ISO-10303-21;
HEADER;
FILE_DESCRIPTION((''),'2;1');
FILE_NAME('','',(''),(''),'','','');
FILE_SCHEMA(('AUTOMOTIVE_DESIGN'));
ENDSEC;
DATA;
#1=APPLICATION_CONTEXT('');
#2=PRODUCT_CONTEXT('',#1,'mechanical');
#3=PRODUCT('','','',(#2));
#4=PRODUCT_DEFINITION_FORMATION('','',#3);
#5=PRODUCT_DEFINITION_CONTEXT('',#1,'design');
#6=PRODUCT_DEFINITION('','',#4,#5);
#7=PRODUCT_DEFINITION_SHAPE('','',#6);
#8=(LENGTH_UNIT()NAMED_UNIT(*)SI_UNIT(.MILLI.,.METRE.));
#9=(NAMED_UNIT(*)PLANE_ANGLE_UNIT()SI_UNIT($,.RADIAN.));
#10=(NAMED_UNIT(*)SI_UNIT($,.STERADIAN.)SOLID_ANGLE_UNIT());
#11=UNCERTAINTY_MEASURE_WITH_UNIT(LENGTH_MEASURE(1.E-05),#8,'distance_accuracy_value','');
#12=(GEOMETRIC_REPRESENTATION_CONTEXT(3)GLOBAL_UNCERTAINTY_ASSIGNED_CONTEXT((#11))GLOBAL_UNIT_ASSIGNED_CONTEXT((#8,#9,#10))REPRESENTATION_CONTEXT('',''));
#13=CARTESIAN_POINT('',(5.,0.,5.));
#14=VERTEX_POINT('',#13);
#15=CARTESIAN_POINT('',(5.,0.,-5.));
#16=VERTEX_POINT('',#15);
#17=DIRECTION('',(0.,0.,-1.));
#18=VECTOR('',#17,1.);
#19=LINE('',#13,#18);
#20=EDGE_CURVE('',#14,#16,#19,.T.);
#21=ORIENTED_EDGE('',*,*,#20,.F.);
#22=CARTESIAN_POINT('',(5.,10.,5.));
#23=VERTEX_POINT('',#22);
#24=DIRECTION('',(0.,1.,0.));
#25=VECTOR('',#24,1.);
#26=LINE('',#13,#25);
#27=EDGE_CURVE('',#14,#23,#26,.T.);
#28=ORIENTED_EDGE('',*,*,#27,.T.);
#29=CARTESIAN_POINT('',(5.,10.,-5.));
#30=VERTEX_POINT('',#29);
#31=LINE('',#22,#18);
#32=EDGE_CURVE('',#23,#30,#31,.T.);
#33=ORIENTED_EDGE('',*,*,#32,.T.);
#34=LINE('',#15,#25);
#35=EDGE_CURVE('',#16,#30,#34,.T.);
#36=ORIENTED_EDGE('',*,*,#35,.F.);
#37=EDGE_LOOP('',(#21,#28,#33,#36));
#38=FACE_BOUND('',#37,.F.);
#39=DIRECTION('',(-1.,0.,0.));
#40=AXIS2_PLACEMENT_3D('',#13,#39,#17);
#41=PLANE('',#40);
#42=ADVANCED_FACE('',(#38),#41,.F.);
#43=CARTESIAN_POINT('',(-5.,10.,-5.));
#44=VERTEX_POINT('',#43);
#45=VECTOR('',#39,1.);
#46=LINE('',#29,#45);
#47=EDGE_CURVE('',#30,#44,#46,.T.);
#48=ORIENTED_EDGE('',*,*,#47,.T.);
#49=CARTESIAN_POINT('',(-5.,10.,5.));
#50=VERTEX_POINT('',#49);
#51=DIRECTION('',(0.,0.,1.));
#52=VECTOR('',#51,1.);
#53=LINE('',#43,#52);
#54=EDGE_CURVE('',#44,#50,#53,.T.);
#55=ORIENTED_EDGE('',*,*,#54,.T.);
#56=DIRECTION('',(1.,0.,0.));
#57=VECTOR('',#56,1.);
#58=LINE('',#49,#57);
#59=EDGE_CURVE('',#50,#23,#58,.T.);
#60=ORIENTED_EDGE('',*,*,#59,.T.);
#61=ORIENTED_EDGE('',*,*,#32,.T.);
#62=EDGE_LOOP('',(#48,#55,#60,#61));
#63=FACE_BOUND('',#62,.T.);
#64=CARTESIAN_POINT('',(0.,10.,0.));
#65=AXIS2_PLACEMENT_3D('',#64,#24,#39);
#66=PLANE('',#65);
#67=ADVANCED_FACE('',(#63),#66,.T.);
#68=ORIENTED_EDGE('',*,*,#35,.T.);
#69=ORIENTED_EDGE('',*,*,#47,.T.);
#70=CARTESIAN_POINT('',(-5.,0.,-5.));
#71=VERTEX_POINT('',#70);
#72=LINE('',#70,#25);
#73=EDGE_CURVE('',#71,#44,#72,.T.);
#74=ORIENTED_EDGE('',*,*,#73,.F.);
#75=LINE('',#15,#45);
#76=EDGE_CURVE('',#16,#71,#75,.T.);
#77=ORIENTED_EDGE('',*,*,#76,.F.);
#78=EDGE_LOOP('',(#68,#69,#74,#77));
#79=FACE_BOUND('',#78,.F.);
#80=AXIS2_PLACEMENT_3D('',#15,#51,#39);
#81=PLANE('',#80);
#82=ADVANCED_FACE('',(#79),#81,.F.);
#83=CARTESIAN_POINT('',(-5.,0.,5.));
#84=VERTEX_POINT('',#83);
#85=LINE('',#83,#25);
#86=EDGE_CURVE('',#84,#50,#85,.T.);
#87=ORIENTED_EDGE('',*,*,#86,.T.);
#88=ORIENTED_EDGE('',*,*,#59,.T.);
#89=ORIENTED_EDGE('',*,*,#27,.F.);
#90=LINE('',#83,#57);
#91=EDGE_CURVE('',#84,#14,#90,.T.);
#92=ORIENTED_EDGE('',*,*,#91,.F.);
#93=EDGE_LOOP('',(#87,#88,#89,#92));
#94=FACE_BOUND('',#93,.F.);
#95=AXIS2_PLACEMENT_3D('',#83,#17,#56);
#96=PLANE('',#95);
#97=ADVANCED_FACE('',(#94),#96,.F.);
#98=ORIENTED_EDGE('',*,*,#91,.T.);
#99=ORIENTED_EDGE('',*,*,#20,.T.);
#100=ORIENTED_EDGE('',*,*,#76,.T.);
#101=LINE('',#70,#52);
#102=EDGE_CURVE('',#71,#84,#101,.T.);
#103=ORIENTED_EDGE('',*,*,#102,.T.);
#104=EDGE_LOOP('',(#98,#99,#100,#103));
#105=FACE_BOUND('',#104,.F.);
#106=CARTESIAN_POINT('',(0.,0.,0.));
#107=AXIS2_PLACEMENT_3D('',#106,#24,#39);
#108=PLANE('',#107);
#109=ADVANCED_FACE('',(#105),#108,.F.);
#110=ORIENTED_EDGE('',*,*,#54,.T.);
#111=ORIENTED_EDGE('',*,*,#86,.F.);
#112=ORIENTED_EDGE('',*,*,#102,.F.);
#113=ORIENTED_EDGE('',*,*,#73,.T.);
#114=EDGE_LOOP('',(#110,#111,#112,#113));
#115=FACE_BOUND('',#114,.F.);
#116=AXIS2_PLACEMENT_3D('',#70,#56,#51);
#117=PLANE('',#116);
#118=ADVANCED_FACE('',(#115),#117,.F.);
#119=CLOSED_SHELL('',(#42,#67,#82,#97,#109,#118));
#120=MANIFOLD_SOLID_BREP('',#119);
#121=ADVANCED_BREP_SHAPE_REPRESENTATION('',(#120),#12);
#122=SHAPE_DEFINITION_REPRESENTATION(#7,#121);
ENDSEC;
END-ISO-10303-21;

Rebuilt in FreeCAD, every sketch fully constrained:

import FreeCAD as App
import Part
import Sketcher

V = App.Vector


def add_polygon(sketch, points):
    """Adds a closed chain of lines whose ends are joined by coincident constraints."""
    first, n = sketch.GeometryCount, len(points)
    for a, b in zip(points, points[1:] + points[:1]):
        sketch.addGeometry(Part.LineSegment(App.Vector(*a, 0), App.Vector(*b, 0)), False)
    for i in range(n):
        sketch.addConstraint(Sketcher.Constraint("Coincident", first + i, 2, first + (i + 1) % n, 1))

doc = App.newDocument("Part")
body = doc.addObject("PartDesign::Body", "Body")

# Sketch on XZ plane
sketch1 = body.newObject("Sketcher::SketchObject", "Sketch")
sketch1.AttachmentSupport = (doc.getObject("XZ_Plane"), [""])
sketch1.MapMode = "FlatFace"
add_polygon(sketch1, [(5, 5), (5, -5), (-5, -5), (-5, 5)])  # lines 0-3
sketch1.addConstraint(Sketcher.Constraint("Vertical", 0))
sketch1.addConstraint(Sketcher.Constraint("Horizontal", 1))
sketch1.addConstraint(Sketcher.Constraint("Vertical", 2))
sketch1.addConstraint(Sketcher.Constraint("Horizontal", 3))
sketch1.addConstraint(Sketcher.Constraint("Symmetric", 0, 2, 2, 2, -1, 1))
sketch1.addConstraint(Sketcher.Constraint("Equal", 3, 0))
sketch1.addConstraint(Sketcher.Constraint("DistanceX", 1, 2, 1, 1, 10.0))
pad1 = body.newObject("PartDesign::Pad", "Pad")
pad1.Profile = sketch1
pad1.Length = 10
pad1.Reversed = True

doc.recompute()
